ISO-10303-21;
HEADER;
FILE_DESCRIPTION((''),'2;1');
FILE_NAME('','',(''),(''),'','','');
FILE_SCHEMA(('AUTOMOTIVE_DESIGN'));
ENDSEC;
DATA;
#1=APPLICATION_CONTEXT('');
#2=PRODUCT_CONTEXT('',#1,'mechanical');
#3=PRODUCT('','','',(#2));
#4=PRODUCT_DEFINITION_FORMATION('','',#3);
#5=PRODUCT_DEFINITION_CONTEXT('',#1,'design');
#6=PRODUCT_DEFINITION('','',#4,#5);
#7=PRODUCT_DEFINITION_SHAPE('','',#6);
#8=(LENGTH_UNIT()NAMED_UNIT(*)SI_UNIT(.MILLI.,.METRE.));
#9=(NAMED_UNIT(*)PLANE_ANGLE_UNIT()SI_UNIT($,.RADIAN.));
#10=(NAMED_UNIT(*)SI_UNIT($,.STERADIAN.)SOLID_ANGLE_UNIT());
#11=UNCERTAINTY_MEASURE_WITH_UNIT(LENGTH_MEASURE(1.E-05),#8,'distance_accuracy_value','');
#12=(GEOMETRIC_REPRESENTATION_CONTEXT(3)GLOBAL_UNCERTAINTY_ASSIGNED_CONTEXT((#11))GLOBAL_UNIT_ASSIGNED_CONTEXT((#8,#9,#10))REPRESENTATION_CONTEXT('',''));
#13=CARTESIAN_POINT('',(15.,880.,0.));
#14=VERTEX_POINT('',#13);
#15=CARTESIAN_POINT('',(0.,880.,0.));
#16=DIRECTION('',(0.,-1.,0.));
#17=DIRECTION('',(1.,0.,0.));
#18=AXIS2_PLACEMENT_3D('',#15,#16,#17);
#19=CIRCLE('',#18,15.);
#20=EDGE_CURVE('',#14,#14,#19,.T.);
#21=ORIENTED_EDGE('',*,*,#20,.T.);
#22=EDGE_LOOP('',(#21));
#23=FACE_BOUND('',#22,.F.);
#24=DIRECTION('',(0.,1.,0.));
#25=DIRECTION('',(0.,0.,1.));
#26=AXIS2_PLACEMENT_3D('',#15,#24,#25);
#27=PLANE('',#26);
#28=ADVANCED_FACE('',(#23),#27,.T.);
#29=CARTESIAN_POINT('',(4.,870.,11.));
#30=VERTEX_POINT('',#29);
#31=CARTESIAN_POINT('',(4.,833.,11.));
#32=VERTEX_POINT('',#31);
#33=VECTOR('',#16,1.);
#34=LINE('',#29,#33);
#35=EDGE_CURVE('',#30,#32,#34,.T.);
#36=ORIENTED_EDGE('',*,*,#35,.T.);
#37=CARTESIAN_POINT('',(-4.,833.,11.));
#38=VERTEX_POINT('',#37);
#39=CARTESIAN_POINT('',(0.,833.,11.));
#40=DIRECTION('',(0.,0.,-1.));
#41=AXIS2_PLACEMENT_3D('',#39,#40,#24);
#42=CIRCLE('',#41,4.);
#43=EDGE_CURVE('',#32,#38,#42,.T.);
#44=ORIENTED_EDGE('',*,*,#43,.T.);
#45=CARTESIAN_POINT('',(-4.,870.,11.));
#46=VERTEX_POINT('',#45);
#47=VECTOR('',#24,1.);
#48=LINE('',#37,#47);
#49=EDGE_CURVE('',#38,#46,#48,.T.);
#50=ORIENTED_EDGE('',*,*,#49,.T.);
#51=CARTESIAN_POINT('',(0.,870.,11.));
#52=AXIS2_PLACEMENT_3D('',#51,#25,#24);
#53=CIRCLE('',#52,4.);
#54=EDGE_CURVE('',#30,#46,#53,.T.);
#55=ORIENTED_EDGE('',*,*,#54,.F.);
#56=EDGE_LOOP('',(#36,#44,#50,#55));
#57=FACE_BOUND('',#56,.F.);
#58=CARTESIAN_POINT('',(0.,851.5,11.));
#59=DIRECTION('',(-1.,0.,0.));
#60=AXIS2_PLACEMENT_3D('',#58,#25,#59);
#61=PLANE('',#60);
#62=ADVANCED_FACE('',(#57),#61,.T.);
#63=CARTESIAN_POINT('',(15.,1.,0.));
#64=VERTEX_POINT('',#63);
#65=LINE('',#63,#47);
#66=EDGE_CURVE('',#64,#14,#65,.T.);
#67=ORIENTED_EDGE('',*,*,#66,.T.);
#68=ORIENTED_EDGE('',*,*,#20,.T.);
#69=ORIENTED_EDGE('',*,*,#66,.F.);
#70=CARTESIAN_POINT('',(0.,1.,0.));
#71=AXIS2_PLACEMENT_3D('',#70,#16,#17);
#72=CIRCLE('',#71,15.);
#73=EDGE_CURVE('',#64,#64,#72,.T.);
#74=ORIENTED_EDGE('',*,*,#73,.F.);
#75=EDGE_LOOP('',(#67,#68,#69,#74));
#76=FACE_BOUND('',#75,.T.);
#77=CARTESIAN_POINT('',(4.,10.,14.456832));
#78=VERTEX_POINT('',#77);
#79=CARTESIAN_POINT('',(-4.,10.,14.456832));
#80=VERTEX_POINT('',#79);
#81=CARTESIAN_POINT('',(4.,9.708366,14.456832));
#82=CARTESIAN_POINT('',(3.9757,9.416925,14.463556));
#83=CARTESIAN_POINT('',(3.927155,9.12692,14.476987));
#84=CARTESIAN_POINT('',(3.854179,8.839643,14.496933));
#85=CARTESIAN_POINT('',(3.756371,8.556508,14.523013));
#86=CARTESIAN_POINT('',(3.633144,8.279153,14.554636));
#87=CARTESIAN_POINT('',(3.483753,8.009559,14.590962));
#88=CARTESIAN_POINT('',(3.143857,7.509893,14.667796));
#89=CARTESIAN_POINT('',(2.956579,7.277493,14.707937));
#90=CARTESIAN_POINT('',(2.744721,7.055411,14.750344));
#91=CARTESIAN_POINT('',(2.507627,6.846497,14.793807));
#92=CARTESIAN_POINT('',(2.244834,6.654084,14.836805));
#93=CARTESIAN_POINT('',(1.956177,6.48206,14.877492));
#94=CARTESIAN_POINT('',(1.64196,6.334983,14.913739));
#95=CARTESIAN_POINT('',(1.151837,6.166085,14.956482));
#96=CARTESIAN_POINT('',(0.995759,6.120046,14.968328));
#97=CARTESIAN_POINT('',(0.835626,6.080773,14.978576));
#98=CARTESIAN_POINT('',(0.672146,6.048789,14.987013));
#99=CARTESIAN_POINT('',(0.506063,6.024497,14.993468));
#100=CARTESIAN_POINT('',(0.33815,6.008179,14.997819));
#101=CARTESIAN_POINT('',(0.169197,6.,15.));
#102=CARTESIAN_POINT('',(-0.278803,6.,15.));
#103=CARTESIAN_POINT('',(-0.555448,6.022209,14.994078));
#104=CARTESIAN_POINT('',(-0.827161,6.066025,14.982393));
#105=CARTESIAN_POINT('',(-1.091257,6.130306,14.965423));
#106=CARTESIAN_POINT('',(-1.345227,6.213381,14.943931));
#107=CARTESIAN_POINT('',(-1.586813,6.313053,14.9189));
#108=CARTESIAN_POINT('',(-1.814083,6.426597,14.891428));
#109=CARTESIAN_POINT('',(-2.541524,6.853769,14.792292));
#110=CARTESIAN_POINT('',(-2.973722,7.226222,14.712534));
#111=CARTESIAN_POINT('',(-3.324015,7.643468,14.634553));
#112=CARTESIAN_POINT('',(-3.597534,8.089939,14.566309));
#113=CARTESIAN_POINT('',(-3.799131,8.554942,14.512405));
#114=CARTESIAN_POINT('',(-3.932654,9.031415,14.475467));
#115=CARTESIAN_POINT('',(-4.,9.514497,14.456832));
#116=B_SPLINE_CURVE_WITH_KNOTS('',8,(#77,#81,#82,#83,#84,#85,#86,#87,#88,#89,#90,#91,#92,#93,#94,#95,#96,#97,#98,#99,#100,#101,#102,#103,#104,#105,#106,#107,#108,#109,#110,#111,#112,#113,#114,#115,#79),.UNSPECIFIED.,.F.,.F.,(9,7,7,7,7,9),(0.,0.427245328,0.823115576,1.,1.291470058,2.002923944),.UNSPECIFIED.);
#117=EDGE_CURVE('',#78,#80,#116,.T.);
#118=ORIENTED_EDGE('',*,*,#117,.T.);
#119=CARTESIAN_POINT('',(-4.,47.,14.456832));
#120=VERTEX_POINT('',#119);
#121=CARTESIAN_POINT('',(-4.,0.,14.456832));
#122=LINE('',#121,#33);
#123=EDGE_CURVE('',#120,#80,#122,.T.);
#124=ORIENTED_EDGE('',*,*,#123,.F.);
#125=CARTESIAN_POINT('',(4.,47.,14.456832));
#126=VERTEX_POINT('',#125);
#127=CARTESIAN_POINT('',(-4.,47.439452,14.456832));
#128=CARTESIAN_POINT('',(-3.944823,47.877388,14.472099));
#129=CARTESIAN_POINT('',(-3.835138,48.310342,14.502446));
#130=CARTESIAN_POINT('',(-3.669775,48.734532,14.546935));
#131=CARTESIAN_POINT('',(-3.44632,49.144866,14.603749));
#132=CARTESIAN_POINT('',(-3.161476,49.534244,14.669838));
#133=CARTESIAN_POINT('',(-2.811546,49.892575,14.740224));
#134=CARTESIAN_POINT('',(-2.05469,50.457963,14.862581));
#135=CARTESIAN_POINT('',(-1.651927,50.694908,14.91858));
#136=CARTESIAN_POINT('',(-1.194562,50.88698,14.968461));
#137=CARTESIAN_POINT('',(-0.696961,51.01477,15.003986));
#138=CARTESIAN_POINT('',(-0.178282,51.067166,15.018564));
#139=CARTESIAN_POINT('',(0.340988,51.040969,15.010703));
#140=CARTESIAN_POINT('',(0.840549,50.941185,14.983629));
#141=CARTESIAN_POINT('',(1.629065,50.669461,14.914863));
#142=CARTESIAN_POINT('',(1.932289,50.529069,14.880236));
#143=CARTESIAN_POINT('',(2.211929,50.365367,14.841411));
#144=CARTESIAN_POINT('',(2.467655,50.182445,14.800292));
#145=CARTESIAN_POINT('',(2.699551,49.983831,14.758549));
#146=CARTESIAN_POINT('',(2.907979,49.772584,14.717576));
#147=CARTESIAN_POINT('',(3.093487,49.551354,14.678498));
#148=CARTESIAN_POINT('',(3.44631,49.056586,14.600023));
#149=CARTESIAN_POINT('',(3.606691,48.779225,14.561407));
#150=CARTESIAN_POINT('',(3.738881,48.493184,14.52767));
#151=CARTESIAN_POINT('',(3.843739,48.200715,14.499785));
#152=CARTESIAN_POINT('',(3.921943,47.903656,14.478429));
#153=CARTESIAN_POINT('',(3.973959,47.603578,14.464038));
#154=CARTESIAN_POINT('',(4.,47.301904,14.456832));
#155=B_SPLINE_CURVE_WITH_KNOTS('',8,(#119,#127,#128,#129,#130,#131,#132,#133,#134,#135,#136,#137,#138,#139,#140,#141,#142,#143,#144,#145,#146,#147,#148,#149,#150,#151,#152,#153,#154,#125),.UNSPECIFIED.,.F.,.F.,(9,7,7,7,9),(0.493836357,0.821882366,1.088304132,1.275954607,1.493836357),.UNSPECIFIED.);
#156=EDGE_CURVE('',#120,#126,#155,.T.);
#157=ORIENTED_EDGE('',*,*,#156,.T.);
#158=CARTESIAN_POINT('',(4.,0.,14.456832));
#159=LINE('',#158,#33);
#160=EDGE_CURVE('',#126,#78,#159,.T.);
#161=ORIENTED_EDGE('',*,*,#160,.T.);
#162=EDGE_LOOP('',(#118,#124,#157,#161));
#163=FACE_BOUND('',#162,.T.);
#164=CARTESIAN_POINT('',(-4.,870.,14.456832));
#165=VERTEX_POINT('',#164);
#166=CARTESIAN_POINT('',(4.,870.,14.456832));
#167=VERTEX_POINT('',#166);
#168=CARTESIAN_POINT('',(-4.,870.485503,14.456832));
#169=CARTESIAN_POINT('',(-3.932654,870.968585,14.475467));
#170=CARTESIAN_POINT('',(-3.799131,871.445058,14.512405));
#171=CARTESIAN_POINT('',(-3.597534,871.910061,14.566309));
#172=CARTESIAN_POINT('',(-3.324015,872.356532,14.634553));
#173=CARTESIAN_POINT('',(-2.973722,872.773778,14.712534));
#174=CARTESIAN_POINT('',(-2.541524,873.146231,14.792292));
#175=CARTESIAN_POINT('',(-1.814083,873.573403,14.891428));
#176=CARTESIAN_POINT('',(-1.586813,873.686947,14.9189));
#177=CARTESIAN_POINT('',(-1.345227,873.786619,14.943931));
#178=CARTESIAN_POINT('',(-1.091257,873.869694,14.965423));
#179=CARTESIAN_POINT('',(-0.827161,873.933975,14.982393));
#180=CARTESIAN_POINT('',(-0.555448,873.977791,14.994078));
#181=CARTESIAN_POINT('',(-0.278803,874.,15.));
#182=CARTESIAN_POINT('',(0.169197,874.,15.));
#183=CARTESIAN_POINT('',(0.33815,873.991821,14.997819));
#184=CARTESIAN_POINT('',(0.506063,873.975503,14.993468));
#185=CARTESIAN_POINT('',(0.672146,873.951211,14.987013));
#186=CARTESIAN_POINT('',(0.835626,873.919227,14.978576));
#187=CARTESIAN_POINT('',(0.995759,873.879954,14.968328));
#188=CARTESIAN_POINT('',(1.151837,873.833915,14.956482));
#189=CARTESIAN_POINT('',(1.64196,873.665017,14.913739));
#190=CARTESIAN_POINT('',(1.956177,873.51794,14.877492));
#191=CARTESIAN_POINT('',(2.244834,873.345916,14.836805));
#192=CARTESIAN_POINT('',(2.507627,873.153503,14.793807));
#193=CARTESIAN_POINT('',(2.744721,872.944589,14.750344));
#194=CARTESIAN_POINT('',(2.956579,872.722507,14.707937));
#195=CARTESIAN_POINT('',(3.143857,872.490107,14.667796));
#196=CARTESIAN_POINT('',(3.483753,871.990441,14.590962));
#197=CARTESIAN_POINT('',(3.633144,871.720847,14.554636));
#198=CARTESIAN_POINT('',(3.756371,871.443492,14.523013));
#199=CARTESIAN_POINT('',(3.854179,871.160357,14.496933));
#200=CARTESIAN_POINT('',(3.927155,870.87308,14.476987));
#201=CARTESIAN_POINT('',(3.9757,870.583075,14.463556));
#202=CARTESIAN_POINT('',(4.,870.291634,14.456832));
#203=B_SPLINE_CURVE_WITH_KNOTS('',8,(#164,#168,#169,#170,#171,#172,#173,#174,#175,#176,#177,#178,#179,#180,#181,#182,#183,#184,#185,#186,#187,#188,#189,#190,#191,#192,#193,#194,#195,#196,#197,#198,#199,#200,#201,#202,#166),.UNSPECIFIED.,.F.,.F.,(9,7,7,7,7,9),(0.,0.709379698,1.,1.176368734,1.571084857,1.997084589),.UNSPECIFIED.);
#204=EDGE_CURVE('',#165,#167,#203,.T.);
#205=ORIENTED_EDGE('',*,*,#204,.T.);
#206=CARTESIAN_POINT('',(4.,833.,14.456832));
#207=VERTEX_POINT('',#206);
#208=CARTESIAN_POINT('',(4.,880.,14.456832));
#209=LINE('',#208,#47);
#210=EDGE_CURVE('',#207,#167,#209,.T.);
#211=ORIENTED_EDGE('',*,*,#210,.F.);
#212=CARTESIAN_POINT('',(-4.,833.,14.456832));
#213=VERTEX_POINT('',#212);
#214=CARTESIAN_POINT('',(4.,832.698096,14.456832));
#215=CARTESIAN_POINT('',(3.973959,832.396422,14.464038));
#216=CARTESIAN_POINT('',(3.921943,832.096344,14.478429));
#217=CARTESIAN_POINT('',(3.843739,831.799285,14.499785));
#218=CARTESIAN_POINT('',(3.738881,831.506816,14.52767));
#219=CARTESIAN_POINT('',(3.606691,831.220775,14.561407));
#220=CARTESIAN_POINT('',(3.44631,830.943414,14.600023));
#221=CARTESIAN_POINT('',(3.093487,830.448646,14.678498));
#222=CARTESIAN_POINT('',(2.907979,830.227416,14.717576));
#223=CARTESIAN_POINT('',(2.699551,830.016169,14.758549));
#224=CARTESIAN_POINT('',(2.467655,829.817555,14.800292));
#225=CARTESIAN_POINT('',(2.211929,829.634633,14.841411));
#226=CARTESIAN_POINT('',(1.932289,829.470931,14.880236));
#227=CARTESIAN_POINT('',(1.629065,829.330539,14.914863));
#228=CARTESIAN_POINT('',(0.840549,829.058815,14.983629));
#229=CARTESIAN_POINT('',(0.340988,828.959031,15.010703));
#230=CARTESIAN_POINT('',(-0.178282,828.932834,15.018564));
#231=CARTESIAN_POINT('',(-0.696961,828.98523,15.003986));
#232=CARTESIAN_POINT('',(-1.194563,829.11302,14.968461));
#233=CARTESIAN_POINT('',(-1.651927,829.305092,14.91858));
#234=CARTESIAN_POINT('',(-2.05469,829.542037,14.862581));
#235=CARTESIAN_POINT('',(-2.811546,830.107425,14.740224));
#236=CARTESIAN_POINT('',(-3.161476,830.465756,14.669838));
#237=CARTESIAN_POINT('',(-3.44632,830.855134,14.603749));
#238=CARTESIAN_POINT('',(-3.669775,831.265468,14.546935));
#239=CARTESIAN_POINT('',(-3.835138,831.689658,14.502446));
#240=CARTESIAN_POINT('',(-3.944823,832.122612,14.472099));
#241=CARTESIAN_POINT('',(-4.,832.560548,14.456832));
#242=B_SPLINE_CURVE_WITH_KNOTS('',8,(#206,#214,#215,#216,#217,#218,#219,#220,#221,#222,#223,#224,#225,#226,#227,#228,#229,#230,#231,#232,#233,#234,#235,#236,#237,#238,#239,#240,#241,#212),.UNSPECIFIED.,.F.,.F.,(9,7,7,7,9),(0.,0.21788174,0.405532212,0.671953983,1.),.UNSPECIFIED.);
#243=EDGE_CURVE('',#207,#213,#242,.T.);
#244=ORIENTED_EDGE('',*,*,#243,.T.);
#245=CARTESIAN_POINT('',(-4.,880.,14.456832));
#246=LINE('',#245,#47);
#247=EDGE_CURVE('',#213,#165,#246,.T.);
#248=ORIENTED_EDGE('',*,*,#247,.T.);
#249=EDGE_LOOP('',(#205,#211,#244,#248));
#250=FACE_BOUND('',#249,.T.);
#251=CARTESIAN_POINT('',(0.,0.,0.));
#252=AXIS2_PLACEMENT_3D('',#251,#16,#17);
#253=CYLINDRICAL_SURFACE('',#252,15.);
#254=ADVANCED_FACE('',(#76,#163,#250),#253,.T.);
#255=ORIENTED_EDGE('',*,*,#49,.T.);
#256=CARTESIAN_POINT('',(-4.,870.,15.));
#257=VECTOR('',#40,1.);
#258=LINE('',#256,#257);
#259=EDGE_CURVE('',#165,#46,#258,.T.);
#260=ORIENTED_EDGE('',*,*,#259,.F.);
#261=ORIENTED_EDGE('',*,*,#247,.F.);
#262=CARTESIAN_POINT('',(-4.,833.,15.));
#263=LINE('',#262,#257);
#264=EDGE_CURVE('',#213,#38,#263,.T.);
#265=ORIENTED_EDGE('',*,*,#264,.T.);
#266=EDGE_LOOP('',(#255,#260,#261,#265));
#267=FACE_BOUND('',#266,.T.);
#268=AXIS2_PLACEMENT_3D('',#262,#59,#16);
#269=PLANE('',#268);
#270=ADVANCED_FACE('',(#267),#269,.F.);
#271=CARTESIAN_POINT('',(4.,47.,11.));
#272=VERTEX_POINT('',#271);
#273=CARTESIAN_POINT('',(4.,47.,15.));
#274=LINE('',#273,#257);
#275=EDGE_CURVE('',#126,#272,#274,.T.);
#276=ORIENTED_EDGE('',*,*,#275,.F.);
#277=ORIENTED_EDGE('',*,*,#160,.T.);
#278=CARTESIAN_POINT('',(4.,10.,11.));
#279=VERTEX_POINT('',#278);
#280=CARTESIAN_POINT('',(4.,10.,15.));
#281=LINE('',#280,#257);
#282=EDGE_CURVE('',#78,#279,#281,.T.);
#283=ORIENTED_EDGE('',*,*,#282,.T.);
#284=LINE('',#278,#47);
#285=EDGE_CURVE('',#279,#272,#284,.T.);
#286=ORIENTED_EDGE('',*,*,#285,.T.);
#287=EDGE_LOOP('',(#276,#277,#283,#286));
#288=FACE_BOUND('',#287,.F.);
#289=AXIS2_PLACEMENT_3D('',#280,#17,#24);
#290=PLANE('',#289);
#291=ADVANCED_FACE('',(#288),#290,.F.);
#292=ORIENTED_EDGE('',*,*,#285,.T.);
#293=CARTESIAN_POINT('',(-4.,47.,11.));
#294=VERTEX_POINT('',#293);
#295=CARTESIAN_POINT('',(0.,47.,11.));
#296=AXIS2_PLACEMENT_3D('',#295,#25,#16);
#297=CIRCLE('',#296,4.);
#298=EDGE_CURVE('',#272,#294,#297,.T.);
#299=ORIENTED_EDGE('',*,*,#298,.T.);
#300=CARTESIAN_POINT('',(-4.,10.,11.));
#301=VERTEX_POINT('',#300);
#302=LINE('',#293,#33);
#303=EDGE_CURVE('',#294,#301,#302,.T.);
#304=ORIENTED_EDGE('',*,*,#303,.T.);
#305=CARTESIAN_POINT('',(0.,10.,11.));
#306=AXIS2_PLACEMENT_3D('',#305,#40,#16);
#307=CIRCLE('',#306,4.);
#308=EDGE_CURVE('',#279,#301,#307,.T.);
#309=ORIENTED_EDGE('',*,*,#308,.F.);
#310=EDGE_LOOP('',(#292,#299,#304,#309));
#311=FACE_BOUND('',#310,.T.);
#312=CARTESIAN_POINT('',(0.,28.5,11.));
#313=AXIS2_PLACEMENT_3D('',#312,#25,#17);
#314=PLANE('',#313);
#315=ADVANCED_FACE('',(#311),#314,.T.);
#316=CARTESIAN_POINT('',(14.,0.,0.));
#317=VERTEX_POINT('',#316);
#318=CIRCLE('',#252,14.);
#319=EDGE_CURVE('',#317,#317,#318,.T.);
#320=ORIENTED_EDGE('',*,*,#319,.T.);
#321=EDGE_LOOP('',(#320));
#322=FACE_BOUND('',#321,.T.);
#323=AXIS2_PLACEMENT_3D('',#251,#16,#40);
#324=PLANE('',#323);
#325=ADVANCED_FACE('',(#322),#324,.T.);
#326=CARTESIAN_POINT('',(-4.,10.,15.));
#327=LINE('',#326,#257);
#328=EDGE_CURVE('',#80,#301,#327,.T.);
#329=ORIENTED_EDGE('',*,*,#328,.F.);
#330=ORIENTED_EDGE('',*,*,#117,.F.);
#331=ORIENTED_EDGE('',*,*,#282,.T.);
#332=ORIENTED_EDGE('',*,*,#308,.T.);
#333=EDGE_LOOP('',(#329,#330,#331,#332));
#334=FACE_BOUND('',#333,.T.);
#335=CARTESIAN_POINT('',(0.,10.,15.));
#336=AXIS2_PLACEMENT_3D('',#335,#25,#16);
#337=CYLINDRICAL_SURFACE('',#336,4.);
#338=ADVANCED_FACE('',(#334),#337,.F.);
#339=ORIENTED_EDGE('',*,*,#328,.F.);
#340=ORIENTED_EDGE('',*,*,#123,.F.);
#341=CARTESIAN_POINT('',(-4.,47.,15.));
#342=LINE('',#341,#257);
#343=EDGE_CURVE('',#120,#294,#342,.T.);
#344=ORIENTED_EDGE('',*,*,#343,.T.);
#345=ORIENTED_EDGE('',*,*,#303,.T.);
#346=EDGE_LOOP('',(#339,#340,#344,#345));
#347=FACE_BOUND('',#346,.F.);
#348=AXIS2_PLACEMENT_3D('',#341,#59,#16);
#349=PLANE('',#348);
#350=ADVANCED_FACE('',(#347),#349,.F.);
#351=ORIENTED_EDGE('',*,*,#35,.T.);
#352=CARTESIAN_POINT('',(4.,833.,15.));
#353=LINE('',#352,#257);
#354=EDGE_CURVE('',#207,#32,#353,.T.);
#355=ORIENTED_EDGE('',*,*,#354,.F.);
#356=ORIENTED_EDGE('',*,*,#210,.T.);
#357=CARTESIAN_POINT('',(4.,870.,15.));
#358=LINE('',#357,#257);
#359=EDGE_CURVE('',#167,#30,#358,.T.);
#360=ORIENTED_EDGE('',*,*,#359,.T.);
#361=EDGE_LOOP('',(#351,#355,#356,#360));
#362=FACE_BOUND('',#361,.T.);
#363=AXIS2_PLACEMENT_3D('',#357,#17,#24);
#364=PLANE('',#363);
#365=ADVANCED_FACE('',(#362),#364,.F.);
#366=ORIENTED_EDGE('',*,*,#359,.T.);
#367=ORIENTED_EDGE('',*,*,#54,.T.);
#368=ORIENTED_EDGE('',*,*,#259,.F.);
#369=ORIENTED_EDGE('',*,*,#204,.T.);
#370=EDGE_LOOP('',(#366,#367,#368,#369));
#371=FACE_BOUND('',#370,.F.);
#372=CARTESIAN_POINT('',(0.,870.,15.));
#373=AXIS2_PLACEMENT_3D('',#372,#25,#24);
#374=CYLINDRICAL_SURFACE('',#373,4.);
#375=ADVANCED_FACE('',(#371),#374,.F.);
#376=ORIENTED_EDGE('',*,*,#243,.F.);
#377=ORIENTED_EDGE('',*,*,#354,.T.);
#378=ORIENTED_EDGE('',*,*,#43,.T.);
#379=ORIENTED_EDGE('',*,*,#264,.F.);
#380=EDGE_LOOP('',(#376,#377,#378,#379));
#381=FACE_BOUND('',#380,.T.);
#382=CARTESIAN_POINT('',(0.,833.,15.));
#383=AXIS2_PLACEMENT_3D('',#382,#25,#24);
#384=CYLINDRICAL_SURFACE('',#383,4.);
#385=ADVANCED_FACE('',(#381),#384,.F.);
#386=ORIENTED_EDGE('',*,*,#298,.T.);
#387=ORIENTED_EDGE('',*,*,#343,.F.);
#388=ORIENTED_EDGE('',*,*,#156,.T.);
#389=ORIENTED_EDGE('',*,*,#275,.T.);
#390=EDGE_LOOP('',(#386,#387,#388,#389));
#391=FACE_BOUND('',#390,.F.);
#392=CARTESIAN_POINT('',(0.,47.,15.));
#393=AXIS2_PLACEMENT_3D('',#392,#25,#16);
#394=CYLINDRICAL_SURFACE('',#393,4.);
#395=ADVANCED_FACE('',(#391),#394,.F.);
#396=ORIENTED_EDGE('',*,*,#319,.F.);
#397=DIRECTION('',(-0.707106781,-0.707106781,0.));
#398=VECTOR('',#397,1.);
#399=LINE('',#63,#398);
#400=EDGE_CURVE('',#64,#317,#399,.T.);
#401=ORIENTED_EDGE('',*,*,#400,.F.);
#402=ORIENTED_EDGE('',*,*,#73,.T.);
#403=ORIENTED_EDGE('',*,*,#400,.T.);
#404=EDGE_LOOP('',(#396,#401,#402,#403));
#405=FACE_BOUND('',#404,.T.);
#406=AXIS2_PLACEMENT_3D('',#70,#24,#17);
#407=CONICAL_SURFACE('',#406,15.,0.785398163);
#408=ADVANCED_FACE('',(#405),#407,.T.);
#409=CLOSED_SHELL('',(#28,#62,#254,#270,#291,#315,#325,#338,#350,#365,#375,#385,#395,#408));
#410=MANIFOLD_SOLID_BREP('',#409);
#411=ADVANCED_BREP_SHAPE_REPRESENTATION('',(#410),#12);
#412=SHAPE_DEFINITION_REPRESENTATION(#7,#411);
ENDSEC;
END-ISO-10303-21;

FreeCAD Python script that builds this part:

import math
import FreeCAD as App
import Part
import Sketcher
from FreeCAD import Vector
Q = App.Units.Quantity


def edges_at(feature, points):
    """Names of the edges that pass closest to the given points."""
    edges = feature.Shape.Edges
    near = lambda p: min(range(len(edges)), key=lambda i: edges[i].distToShape(Part.Vertex(*p))[0])
    return sorted({f"Edge{near(p) + 1}" for p in points})

doc = App.newDocument("Part")
body = doc.addObject("PartDesign::Body", "Body")

sketch1 = doc.addObject("Sketcher::SketchObject", "Sketch")
body.addObject(sketch1)
sketch1.AttachmentSupport = (doc.XZ_Plane, [""])
sketch1.MapMode = "FlatFace"
sketch1.addGeometry(Part.Circle(Vector(0, 0, 0), Vector(0, 0, 1), 15), False)
sketch1.addConstraint([
    Sketcher.Constraint("Coincident", 0, 3, -1, 1),
    Sketcher.Constraint("Diameter", 0, Q("30 mm")),
])
pad1 = doc.addObject("PartDesign::Pad", "Pad")
body.addObject(pad1)
pad1.Profile = sketch1
pad1.Length = 440
pad1.Reversed = True
doc.recompute()

chamfer = doc.addObject("PartDesign::Chamfer", "Chamfer")
body.addObject(chamfer)
chamfer.Base = (pad1, edges_at(pad1, [(-15, 0, 0)]))
chamfer.Size = 1

sketch2 = doc.addObject("Sketcher::SketchObject", "Sketch001")
body.addObject(sketch2)
sketch2.AttachmentSupport = (doc.XY_Plane, [""])
sketch2.MapMode = "FlatFace"
sketch2.AttachmentOffset = App.Placement(Vector(0, 0, 15), App.Rotation())
sketch2.addGeometry([
    Part.ArcOfCircle(Part.Circle(Vector(0, 47, 0), Vector(0, 0, 1), 4), math.radians(0), math.radians(180)),
    Part.LineSegment(Vector(-4, 47, 0), Vector(-4, 10, 0)),
    Part.ArcOfCircle(Part.Circle(Vector(0, 10, 0), Vector(0, 0, 1), 4), math.radians(180), math.radians(360)),
    Part.LineSegment(Vector(4, 10, 0), Vector(4, 47, 0)),
], False)
sketch2.addConstraint([
    Sketcher.Constraint("Tangent", 0, 2, 1, 1),
    Sketcher.Constraint("Tangent", 1, 2, 2, 1),
    Sketcher.Constraint("Tangent", 2, 2, 3, 1),
    Sketcher.Constraint("Tangent", 3, 2, 0, 1),
    Sketcher.Constraint("Vertical", 1),
    Sketcher.Constraint("Vertical", 3),
    Sketcher.Constraint("PointOnObject", 0, 3, -2),
    Sketcher.Constraint("Radius", 0, Q("4 mm")),
    Sketcher.Constraint("DistanceY", 1, 2, 1, 1, Q("37 mm")),
    Sketcher.Constraint("DistanceY", -1, 1, 0, 3, Q("47 mm")),
])
pocket1 = doc.addObject("PartDesign::Pocket", "Pocket")
body.addObject(pocket1)
pocket1.Profile = sketch2
pocket1.Length = 4
doc.recompute()

datumplane = doc.addObject("PartDesign::Plane", "DatumPlane")
body.addObject(datumplane)
datumplane.AttachmentSupport = (doc.XZ_Plane, [""])
datumplane.MapMode = "FlatFace"
datumplane.AttachmentOffset = App.Placement(Vector(0, 0, -440), App.Rotation())
mirrored = doc.addObject("PartDesign::Mirrored", "Mirrored")
body.addObject(mirrored)
mirrored.Originals = [pad1, pocket1]
mirrored.MirrorPlane = (datumplane, [""])
body.Tip = mirrored

doc.recompute()
